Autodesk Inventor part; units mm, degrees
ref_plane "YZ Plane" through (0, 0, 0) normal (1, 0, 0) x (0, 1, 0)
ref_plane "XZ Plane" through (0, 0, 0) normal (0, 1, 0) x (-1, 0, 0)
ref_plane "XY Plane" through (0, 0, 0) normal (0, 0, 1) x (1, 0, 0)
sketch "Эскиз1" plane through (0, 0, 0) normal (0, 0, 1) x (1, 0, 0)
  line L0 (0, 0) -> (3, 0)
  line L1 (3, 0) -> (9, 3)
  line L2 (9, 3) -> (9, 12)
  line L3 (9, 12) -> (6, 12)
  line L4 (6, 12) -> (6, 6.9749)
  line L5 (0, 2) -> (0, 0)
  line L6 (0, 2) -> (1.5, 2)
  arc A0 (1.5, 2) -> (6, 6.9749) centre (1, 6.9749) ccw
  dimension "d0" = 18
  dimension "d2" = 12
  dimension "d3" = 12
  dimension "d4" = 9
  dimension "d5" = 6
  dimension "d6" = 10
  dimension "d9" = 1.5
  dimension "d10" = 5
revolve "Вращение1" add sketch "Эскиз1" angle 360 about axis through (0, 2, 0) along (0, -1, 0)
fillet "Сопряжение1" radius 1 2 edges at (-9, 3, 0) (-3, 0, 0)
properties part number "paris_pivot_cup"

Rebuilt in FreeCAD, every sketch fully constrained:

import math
import FreeCAD as App
import Part
import Sketcher
from FreeCAD import Vector
Q = App.Units.Quantity


def edges_at(feature, points):
    """Names of the edges that pass closest to the given points."""
    edges = feature.Shape.Edges
    near = lambda p: min(range(len(edges)), key=lambda i: edges[i].distToShape(Part.Vertex(*p))[0])
    return sorted({f"Edge{near(p) + 1}" for p in points})

doc = App.newDocument("Part")
body = doc.addObject("PartDesign::Body", "Body")

sketch1 = doc.addObject("Sketcher::SketchObject", "Sketch")
body.addObject(sketch1)
sketch1.AttachmentSupport = (doc.XY_Plane, [""])
sketch1.MapMode = "FlatFace"
sketch1.addGeometry(Part.LineSegment(Vector(0, 2, 0), Vector(0, 0, 0)), False)
sketch1.addGeometry(Part.LineSegment(Vector(0, 0, 0), Vector(3, 0, 0)), False)
sketch1.addGeometry(Part.LineSegment(Vector(3, 0, 0), Vector(9, 3, 0)), False)
sketch1.addGeometry(Part.LineSegment(Vector(9, 3, 0), Vector(9, 12, 0)), False)
sketch1.addGeometry(Part.LineSegment(Vector(9, 12, 0), Vector(6, 12, 0)), False)
sketch1.addGeometry(Part.LineSegment(Vector(6, 12, 0), Vector(6, 7, 0)), False)
sketch1.addGeometry(Part.ArcOfCircle(Part.Circle(Vector(1, 7, 0), Vector(0, 0, 1), 5), math.radians(-84), math.radians(0)), False)
sketch1.addGeometry(Part.LineSegment(Vector(1.5, 2, 0), Vector(0, 2, 0)), False)
sketch1.addConstraint(Sketcher.Constraint("Coincident", 0, 2, 1, 1))
sketch1.addConstraint(Sketcher.Constraint("Coincident", 1, 2, 2, 1))
sketch1.addConstraint(Sketcher.Constraint("Coincident", 2, 2, 3, 1))
sketch1.addConstraint(Sketcher.Constraint("Coincident", 3, 2, 4, 1))
sketch1.addConstraint(Sketcher.Constraint("Coincident", 4, 2, 5, 1))
sketch1.addConstraint(Sketcher.Constraint("Tangent", 5, 2, 6, 2))
sketch1.addConstraint(Sketcher.Constraint("Coincident", 6, 1, 7, 1))
sketch1.addConstraint(Sketcher.Constraint("Coincident", 7, 2, 0, 1))
sketch1.addConstraint(Sketcher.Constraint("Vertical", 0))
sketch1.addConstraint(Sketcher.Constraint("Horizontal", 1))
sketch1.addConstraint(Sketcher.Constraint("Vertical", 3))
sketch1.addConstraint(Sketcher.Constraint("Horizontal", 4))
sketch1.addConstraint(Sketcher.Constraint("Vertical", 5))
sketch1.addConstraint(Sketcher.Constraint("Horizontal", 7))
sketch1.addConstraint(Sketcher.Constraint("Coincident", 0, 2, -1, 1))
sketch1.addConstraint(Sketcher.Constraint("Equal", 1, 4))
sketch1.addConstraint(Sketcher.Constraint("Radius", 6, Q("5 mm")))
sketch1.addConstraint(Sketcher.Constraint("DistanceY", 3, 1, 3, 2, Q("9 mm")))
sketch1.addConstraint(Sketcher.Constraint("DistanceX", 7, 2, 7, 1, Q("1.5 mm")))
sketch1.addConstraint(Sketcher.Constraint("DistanceX", -1, 1, 2, 2, Q("9 mm")))
sketch1.addConstraint(Sketcher.Constraint("DistanceY", -1, 1, 3, 2, Q("12 mm")))
sketch1.addConstraint(Sketcher.Constraint("DistanceX", -1, 1, 4, 2, Q("6 mm")))
sketch1.addConstraint(Sketcher.Constraint("DistanceY", 0, 2, 0, 1, Q("2 mm")))
revolution = doc.addObject("PartDesign::Revolution", "Revolution")
body.addObject(revolution)
revolution.Profile = sketch1
revolution.ReferenceAxis = (sketch1, ["V_Axis"])
revolution.Angle = 360
doc.recompute()

fillet = doc.addObject("PartDesign::Fillet", "Fillet")
body.addObject(fillet)
fillet.Base = (revolution, edges_at(revolution, [(-9, 3, 0), (-3, 0, 0)]))
fillet.Radius = 1

doc.recompute()
